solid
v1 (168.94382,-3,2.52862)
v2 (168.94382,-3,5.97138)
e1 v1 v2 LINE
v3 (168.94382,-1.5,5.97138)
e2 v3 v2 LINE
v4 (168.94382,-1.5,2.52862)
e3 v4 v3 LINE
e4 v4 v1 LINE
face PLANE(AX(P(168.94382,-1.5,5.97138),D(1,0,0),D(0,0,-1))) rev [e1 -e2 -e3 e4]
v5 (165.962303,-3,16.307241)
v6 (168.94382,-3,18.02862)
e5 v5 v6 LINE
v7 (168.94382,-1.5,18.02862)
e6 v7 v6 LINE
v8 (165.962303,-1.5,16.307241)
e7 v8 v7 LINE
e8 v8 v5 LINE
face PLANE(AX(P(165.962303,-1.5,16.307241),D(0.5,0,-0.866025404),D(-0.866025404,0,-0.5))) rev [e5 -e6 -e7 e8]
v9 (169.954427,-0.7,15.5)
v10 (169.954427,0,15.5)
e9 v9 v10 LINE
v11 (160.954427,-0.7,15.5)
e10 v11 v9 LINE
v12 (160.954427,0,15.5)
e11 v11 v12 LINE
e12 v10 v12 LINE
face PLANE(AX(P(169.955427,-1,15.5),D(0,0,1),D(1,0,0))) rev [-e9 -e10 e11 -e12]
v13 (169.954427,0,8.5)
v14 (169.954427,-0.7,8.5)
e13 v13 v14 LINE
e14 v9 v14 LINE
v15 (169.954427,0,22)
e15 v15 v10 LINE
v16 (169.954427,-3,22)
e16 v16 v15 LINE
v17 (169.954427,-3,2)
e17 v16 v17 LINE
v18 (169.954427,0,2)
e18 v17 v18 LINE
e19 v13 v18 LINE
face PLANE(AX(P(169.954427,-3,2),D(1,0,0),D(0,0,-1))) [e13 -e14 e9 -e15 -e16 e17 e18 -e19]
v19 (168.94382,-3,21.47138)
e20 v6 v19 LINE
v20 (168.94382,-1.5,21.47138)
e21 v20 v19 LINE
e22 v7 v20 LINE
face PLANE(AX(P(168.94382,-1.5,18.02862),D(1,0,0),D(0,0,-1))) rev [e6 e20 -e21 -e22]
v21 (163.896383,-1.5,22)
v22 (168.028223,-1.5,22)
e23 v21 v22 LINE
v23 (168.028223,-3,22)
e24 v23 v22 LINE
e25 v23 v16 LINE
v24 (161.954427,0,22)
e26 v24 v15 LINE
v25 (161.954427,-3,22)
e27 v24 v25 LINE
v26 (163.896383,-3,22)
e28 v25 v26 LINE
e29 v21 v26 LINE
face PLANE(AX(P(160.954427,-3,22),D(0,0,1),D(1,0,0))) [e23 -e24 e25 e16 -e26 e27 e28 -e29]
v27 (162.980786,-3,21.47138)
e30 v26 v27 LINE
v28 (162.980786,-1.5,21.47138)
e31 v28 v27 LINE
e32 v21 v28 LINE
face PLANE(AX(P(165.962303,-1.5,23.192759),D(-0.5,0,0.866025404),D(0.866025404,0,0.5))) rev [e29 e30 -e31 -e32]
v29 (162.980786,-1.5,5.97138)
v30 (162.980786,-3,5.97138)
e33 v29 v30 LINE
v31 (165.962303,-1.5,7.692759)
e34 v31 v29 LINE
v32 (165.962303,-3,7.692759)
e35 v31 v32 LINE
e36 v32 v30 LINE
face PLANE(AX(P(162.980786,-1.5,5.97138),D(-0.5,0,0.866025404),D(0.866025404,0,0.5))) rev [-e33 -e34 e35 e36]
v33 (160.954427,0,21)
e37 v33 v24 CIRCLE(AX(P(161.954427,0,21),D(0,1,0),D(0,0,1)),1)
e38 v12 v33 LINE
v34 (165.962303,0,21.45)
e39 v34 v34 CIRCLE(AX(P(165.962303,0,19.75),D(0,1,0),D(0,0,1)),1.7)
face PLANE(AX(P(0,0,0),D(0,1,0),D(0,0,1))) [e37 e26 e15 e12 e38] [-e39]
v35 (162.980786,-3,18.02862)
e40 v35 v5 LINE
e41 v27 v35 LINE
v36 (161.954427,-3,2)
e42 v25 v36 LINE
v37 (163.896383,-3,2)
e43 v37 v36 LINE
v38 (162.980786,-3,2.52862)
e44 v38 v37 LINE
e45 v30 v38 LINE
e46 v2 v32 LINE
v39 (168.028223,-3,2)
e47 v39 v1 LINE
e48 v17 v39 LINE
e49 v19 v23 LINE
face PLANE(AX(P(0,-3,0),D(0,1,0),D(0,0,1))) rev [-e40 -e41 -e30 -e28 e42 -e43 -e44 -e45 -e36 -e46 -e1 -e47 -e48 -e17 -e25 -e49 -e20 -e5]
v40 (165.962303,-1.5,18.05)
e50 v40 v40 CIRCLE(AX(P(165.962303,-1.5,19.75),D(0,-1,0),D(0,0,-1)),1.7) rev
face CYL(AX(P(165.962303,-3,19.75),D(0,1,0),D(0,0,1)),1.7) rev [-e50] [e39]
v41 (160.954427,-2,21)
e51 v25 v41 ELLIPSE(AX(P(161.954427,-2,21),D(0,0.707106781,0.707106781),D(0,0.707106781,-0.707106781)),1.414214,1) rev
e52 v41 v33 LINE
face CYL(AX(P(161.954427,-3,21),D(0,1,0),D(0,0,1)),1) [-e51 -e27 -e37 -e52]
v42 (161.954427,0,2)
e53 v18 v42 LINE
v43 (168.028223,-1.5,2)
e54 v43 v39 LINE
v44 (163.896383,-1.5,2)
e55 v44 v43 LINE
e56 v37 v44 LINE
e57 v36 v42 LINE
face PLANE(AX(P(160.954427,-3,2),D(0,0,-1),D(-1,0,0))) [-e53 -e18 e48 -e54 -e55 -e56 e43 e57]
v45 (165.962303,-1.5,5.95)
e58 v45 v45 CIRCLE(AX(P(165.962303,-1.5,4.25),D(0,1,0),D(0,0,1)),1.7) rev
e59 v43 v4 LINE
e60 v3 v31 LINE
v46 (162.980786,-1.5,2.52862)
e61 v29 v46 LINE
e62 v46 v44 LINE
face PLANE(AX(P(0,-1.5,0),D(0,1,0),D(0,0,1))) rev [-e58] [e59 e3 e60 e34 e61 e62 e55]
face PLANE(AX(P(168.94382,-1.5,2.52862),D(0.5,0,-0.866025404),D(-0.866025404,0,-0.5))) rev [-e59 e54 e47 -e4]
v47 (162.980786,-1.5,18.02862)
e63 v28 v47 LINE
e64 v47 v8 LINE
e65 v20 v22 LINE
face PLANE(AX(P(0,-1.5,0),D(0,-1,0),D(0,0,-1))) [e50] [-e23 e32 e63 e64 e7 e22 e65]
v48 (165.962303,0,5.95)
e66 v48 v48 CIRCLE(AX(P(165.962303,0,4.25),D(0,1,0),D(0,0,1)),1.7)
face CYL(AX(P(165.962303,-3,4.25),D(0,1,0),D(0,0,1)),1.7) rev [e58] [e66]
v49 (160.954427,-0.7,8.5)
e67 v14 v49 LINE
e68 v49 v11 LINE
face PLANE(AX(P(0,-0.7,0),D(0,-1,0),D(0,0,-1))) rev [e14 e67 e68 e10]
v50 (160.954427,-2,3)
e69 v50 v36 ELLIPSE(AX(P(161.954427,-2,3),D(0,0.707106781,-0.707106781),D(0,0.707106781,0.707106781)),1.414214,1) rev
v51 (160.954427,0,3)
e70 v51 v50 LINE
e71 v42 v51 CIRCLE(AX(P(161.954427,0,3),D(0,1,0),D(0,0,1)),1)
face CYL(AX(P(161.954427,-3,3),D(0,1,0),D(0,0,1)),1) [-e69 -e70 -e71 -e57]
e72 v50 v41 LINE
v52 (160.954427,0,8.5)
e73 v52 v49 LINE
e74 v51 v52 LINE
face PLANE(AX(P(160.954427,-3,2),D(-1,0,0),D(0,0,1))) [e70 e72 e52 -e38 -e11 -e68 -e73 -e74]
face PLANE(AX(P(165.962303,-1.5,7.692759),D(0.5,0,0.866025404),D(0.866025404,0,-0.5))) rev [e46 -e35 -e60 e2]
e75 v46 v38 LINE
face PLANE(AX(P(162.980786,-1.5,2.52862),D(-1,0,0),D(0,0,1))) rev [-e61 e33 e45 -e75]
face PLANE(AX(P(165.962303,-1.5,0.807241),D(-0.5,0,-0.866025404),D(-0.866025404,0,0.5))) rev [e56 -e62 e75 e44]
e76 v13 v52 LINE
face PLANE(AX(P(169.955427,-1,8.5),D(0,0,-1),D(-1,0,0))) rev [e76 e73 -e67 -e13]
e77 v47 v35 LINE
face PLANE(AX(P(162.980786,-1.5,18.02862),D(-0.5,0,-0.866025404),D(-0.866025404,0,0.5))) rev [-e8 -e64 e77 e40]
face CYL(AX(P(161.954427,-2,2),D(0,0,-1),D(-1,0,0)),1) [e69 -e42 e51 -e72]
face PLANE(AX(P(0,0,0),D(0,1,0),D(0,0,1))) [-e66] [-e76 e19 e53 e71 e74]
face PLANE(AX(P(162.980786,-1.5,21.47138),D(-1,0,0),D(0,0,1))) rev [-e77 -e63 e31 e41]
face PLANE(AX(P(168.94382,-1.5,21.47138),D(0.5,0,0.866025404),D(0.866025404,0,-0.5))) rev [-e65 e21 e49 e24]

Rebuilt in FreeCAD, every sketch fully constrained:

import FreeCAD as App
import Part
import Sketcher

V = App.Vector
Q = App.Units.Quantity


def edges_at(feature, points):
    """Names of the edges that pass closest to the given points."""
    edges = feature.Shape.Edges
    near = lambda p: min(range(len(edges)), key=lambda i: edges[i].distToShape(Part.Vertex(*p))[0])
    return sorted({f"Edge{near(p) + 1}" for p in points})


def add_polygon(sketch, points):
    """Adds a closed chain of lines whose ends are joined by coincident constraints."""
    first, n = sketch.GeometryCount, len(points)
    for a, b in zip(points, points[1:] + points[:1]):
        sketch.addGeometry(Part.LineSegment(App.Vector(*a, 0), App.Vector(*b, 0)), False)
    for i in range(n):
        sketch.addConstraint(Sketcher.Constraint("Coincident", first + i, 2, first + (i + 1) % n, 1))

doc = App.newDocument("Part")
body = doc.addObject("PartDesign::Body", "Body")

sketch1 = body.newObject("Sketcher::SketchObject", "Sketch")
sketch1.AttachmentSupport = (doc.getObject("XZ_Plane"), [""])
sketch1.MapMode = "FlatFace"
add_polygon(sketch1, [(161, 2), (161, 22), (170, 22), (170, 2)])
sketch1.addGeometry(Part.Circle(V(166, 19.8, 0), V(0, 0, 1), 1.7), False)
sketch1.addGeometry(Part.Circle(V(166, 4.2, 0), V(0, 0, 1), 1.7), False)
sketch1.addConstraint(Sketcher.Constraint("Vertical", 0))
sketch1.addConstraint(Sketcher.Constraint("Horizontal", 1))
sketch1.addConstraint(Sketcher.Constraint("Vertical", 2))
sketch1.addConstraint(Sketcher.Constraint("Horizontal", 3))
sketch1.addConstraint(Sketcher.Constraint("Equal", 4, 5))
sketch1.addConstraint(Sketcher.Constraint("Vertical", 4, 3, 5, 3))
sketch1.addConstraint(Sketcher.Constraint("Diameter", 4, Q("3.4 mm")))
sketch1.addConstraint(Sketcher.Constraint("DistanceX", 1, 1, 1, 2, Q("9 mm")))
sketch1.addConstraint(Sketcher.Constraint("DistanceY", 0, 1, 0, 2, Q("20 mm")))
sketch1.addConstraint(Sketcher.Constraint("DistanceY", -1, 1, 0, 2, Q("22 mm")))
sketch1.addConstraint(Sketcher.Constraint("DistanceY", 5, 3, 4, 3, Q("15.5 mm")))
sketch1.addConstraint(Sketcher.Constraint("DistanceY", -1, 1, 4, 3, Q("19.75 mm")))
sketch1.addConstraint(Sketcher.Constraint("DistanceX", -1, 1, 4, 3, Q("165.962303 mm")))
sketch1.addConstraint(Sketcher.Constraint("DistanceX", -1, 1, 0, 2, Q("160.954427 mm")))
pad1 = body.newObject("PartDesign::Pad", "Pad")
pad1.Profile = sketch1
pad1.Length = 3

sketch2 = body.newObject("Sketcher::SketchObject", "Sketch001")
sketch2.AttachmentSupport = (doc.getObject("XZ_Plane"), [""])
sketch2.MapMode = "FlatFace"
sketch2.AttachmentOffset = App.Placement(V(0, 0, 3), App.Rotation())
add_polygon(sketch2, [(168.9, 21.5), (166, 23.2), (163, 21.5), (163, 18), (166, 16.3), (168.9, 18)])
add_polygon(sketch2, [(168.9, 2.5), (168.9, 6), (166, 7.7), (163, 6), (163, 2.5), (166, 0.8)])
sketch2.addConstraint(Sketcher.Constraint("Vertical", 2))
sketch2.addConstraint(Sketcher.Constraint("Vertical", 5))
sketch2.addConstraint(Sketcher.Constraint("Vertical", 6))
sketch2.addConstraint(Sketcher.Constraint("Vertical", 9))
sketch2.addConstraint(Sketcher.Constraint("Parallel", 0, 3))
sketch2.addConstraint(Sketcher.Constraint("Parallel", 1, 4))
sketch2.addConstraint(Sketcher.Constraint("Parallel", 3, 7))
sketch2.addConstraint(Sketcher.Constraint("Parallel", 4, 8))
sketch2.addConstraint(Sketcher.Constraint("Parallel", 7, 10))
sketch2.addConstraint(Sketcher.Constraint("Parallel", 8, 11))
sketch2.addConstraint(Sketcher.Constraint("Horizontal", 2, 2, 4, 2))
sketch2.addConstraint(Sketcher.Constraint("Horizontal", 1, 2, 5, 2))
sketch2.addConstraint(Sketcher.Constraint("Horizontal", 6, 2, 8, 2))
sketch2.addConstraint(Sketcher.Constraint("Horizontal", 9, 2, 11, 2))
sketch2.addConstraint(Sketcher.Constraint("Vertical", 0, 2, 3, 2))
sketch2.addConstraint(Sketcher.Constraint("Vertical", 5, 2, 6, 2))
sketch2.addConstraint(Sketcher.Constraint("Vertical", 3, 2, 7, 2))
sketch2.addConstraint(Sketcher.Constraint("Equal", 5, 6))
sketch2.addConstraint(Sketcher.Constraint("Angle", 0, Q("150 deg")))
sketch2.addConstraint(Sketcher.Constraint("DistanceY", 6, 2, 5, 2, Q("15.5 mm")))
sketch2.addConstraint(Sketcher.Constraint("DistanceY", 2, 2, 2, 1, Q("3.442759 mm")))
sketch2.addConstraint(Sketcher.Constraint("Distance", 0, Q("3.442759 mm")))
sketch2.addConstraint(Sketcher.Constraint("DistanceY", -1, 1, 0, 2, Q("23.192759 mm")))
sketch2.addConstraint(Sketcher.Constraint("DistanceX", -1, 1, 4, 2, Q("168.94382 mm")))
pocket1 = body.newObject("PartDesign::Pocket", "Pocket")
pocket1.Profile = sketch2
pocket1.Length = 1.5

sketch3 = body.newObject("Sketcher::SketchObject", "Sketch002")
sketch3.AttachmentSupport = (doc.getObject("YZ_Plane"), [""])
sketch3.MapMode = "FlatFace"
sketch3.AttachmentOffset = App.Placement(V(0, 0, 160.954427), App.Rotation())
add_polygon(sketch3, [(0, 8.5), (-1, 8.5), (-1, 15.5), (0, 15.5)])
sketch3.addConstraint(Sketcher.Constraint("Horizontal", 0))
sketch3.addConstraint(Sketcher.Constraint("Vertical", 1))
sketch3.addConstraint(Sketcher.Constraint("Horizontal", 2))
sketch3.addConstraint(Sketcher.Constraint("Vertical", 3))
sketch3.addConstraint(Sketcher.Constraint("PointOnObject", 2, 2, -2))
sketch3.addConstraint(Sketcher.Constraint("DistanceX", 0, 2, 0, 1, Q("1 mm")))
sketch3.addConstraint(Sketcher.Constraint("DistanceY", 1, 1, 1, 2, Q("7 mm")))
sketch3.addConstraint(Sketcher.Constraint("DistanceY", -1, 1, 0, 2, Q("8.5 mm")))
pocket2 = body.newObject("PartDesign::Pocket", "Pocket001")
pocket2.Profile = sketch3
pocket2.Type = "UpToFirst"
pocket2.Reversed = True
doc.recompute()

fillet = body.newObject("PartDesign::Fillet", "Fillet")
fillet.Base = (pocket2, edges_at(pocket2, [(160.954, -3, 12), (160.954, -1.5, 2), (160.954, -1.5, 22)]))
fillet.Radius = 1

sketch4 = body.newObject("Sketcher::SketchObject", "Sketch003")
sketch4.AttachmentSupport = (doc.getObject("XZ_Plane"), [""])
sketch4.MapMode = "FlatFace"
sketch4.AttachmentOffset = App.Placement(V(0, 0, 1), App.Rotation())
add_polygon(sketch4, [(161, 8), (161, 16), (170, 16), (170, 8)])
sketch4.addConstraint(Sketcher.Constraint("Vertical", 0))
sketch4.addConstraint(Sketcher.Constraint("Horizontal", 1))
sketch4.addConstraint(Sketcher.Constraint("Vertical", 2))
sketch4.addConstraint(Sketcher.Constraint("Horizontal", 3))
sketch4.addConstraint(Sketcher.Constraint("DistanceX", 1, 1, 1, 2, Q("9 mm")))
sketch4.addConstraint(Sketcher.Constraint("DistanceY", 0, 1, 0, 2, Q("7 mm")))
sketch4.addConstraint(Sketcher.Constraint("DistanceY", -1, 1, 0, 2, Q("15.5 mm")))
sketch4.addConstraint(Sketcher.Constraint("DistanceX", -1, 1, 0, 2, Q("160.954427 mm")))
pad2 = body.newObject("PartDesign::Pad", "Pad001")
pad2.Profile = sketch4
pad2.Length = 0.3
pad2.Reversed = True

doc.recompute()
